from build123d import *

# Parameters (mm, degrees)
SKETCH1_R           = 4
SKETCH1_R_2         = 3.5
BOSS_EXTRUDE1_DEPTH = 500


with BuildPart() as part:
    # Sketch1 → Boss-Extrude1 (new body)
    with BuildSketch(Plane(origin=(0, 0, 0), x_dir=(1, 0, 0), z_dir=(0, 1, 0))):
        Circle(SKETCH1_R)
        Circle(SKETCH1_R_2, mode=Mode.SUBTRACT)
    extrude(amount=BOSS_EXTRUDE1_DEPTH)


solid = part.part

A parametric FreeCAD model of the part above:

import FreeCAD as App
import Part
import Sketcher
from FreeCAD import Vector

doc = App.newDocument("Part")
body = doc.addObject("PartDesign::Body", "Body")

sketch1 = doc.addObject("Sketcher::SketchObject", "Sketch")
body.addObject(sketch1)
sketch1.AttachmentSupport = (doc.XZ_Plane, [""])
sketch1.MapMode = "FlatFace"
sketch1.addGeometry(Part.Circle(Vector(0, 0, 0), Vector(0, 0, 1), 4), False)
sketch1.addGeometry(Part.Circle(Vector(0, 0, 0), Vector(0, 0, 1), 3.5), False)
sketch1.addConstraint(Sketcher.Constraint("Coincident", 0, 3, -1, 1))
sketch1.addConstraint(Sketcher.Constraint("Coincident", 1, 3, -1, 1))
sketch1.addConstraint(Sketcher.Constraint("Diameter", 0, 8.0))
sketch1.addConstraint(Sketcher.Constraint("Diameter", 1, 7.0))
pad1 = doc.addObject("PartDesign::Pad", "Pad")
body.addObject(pad1)
pad1.Profile = sketch1
pad1.Length = 500
pad1.Reversed = True

doc.recompute()
